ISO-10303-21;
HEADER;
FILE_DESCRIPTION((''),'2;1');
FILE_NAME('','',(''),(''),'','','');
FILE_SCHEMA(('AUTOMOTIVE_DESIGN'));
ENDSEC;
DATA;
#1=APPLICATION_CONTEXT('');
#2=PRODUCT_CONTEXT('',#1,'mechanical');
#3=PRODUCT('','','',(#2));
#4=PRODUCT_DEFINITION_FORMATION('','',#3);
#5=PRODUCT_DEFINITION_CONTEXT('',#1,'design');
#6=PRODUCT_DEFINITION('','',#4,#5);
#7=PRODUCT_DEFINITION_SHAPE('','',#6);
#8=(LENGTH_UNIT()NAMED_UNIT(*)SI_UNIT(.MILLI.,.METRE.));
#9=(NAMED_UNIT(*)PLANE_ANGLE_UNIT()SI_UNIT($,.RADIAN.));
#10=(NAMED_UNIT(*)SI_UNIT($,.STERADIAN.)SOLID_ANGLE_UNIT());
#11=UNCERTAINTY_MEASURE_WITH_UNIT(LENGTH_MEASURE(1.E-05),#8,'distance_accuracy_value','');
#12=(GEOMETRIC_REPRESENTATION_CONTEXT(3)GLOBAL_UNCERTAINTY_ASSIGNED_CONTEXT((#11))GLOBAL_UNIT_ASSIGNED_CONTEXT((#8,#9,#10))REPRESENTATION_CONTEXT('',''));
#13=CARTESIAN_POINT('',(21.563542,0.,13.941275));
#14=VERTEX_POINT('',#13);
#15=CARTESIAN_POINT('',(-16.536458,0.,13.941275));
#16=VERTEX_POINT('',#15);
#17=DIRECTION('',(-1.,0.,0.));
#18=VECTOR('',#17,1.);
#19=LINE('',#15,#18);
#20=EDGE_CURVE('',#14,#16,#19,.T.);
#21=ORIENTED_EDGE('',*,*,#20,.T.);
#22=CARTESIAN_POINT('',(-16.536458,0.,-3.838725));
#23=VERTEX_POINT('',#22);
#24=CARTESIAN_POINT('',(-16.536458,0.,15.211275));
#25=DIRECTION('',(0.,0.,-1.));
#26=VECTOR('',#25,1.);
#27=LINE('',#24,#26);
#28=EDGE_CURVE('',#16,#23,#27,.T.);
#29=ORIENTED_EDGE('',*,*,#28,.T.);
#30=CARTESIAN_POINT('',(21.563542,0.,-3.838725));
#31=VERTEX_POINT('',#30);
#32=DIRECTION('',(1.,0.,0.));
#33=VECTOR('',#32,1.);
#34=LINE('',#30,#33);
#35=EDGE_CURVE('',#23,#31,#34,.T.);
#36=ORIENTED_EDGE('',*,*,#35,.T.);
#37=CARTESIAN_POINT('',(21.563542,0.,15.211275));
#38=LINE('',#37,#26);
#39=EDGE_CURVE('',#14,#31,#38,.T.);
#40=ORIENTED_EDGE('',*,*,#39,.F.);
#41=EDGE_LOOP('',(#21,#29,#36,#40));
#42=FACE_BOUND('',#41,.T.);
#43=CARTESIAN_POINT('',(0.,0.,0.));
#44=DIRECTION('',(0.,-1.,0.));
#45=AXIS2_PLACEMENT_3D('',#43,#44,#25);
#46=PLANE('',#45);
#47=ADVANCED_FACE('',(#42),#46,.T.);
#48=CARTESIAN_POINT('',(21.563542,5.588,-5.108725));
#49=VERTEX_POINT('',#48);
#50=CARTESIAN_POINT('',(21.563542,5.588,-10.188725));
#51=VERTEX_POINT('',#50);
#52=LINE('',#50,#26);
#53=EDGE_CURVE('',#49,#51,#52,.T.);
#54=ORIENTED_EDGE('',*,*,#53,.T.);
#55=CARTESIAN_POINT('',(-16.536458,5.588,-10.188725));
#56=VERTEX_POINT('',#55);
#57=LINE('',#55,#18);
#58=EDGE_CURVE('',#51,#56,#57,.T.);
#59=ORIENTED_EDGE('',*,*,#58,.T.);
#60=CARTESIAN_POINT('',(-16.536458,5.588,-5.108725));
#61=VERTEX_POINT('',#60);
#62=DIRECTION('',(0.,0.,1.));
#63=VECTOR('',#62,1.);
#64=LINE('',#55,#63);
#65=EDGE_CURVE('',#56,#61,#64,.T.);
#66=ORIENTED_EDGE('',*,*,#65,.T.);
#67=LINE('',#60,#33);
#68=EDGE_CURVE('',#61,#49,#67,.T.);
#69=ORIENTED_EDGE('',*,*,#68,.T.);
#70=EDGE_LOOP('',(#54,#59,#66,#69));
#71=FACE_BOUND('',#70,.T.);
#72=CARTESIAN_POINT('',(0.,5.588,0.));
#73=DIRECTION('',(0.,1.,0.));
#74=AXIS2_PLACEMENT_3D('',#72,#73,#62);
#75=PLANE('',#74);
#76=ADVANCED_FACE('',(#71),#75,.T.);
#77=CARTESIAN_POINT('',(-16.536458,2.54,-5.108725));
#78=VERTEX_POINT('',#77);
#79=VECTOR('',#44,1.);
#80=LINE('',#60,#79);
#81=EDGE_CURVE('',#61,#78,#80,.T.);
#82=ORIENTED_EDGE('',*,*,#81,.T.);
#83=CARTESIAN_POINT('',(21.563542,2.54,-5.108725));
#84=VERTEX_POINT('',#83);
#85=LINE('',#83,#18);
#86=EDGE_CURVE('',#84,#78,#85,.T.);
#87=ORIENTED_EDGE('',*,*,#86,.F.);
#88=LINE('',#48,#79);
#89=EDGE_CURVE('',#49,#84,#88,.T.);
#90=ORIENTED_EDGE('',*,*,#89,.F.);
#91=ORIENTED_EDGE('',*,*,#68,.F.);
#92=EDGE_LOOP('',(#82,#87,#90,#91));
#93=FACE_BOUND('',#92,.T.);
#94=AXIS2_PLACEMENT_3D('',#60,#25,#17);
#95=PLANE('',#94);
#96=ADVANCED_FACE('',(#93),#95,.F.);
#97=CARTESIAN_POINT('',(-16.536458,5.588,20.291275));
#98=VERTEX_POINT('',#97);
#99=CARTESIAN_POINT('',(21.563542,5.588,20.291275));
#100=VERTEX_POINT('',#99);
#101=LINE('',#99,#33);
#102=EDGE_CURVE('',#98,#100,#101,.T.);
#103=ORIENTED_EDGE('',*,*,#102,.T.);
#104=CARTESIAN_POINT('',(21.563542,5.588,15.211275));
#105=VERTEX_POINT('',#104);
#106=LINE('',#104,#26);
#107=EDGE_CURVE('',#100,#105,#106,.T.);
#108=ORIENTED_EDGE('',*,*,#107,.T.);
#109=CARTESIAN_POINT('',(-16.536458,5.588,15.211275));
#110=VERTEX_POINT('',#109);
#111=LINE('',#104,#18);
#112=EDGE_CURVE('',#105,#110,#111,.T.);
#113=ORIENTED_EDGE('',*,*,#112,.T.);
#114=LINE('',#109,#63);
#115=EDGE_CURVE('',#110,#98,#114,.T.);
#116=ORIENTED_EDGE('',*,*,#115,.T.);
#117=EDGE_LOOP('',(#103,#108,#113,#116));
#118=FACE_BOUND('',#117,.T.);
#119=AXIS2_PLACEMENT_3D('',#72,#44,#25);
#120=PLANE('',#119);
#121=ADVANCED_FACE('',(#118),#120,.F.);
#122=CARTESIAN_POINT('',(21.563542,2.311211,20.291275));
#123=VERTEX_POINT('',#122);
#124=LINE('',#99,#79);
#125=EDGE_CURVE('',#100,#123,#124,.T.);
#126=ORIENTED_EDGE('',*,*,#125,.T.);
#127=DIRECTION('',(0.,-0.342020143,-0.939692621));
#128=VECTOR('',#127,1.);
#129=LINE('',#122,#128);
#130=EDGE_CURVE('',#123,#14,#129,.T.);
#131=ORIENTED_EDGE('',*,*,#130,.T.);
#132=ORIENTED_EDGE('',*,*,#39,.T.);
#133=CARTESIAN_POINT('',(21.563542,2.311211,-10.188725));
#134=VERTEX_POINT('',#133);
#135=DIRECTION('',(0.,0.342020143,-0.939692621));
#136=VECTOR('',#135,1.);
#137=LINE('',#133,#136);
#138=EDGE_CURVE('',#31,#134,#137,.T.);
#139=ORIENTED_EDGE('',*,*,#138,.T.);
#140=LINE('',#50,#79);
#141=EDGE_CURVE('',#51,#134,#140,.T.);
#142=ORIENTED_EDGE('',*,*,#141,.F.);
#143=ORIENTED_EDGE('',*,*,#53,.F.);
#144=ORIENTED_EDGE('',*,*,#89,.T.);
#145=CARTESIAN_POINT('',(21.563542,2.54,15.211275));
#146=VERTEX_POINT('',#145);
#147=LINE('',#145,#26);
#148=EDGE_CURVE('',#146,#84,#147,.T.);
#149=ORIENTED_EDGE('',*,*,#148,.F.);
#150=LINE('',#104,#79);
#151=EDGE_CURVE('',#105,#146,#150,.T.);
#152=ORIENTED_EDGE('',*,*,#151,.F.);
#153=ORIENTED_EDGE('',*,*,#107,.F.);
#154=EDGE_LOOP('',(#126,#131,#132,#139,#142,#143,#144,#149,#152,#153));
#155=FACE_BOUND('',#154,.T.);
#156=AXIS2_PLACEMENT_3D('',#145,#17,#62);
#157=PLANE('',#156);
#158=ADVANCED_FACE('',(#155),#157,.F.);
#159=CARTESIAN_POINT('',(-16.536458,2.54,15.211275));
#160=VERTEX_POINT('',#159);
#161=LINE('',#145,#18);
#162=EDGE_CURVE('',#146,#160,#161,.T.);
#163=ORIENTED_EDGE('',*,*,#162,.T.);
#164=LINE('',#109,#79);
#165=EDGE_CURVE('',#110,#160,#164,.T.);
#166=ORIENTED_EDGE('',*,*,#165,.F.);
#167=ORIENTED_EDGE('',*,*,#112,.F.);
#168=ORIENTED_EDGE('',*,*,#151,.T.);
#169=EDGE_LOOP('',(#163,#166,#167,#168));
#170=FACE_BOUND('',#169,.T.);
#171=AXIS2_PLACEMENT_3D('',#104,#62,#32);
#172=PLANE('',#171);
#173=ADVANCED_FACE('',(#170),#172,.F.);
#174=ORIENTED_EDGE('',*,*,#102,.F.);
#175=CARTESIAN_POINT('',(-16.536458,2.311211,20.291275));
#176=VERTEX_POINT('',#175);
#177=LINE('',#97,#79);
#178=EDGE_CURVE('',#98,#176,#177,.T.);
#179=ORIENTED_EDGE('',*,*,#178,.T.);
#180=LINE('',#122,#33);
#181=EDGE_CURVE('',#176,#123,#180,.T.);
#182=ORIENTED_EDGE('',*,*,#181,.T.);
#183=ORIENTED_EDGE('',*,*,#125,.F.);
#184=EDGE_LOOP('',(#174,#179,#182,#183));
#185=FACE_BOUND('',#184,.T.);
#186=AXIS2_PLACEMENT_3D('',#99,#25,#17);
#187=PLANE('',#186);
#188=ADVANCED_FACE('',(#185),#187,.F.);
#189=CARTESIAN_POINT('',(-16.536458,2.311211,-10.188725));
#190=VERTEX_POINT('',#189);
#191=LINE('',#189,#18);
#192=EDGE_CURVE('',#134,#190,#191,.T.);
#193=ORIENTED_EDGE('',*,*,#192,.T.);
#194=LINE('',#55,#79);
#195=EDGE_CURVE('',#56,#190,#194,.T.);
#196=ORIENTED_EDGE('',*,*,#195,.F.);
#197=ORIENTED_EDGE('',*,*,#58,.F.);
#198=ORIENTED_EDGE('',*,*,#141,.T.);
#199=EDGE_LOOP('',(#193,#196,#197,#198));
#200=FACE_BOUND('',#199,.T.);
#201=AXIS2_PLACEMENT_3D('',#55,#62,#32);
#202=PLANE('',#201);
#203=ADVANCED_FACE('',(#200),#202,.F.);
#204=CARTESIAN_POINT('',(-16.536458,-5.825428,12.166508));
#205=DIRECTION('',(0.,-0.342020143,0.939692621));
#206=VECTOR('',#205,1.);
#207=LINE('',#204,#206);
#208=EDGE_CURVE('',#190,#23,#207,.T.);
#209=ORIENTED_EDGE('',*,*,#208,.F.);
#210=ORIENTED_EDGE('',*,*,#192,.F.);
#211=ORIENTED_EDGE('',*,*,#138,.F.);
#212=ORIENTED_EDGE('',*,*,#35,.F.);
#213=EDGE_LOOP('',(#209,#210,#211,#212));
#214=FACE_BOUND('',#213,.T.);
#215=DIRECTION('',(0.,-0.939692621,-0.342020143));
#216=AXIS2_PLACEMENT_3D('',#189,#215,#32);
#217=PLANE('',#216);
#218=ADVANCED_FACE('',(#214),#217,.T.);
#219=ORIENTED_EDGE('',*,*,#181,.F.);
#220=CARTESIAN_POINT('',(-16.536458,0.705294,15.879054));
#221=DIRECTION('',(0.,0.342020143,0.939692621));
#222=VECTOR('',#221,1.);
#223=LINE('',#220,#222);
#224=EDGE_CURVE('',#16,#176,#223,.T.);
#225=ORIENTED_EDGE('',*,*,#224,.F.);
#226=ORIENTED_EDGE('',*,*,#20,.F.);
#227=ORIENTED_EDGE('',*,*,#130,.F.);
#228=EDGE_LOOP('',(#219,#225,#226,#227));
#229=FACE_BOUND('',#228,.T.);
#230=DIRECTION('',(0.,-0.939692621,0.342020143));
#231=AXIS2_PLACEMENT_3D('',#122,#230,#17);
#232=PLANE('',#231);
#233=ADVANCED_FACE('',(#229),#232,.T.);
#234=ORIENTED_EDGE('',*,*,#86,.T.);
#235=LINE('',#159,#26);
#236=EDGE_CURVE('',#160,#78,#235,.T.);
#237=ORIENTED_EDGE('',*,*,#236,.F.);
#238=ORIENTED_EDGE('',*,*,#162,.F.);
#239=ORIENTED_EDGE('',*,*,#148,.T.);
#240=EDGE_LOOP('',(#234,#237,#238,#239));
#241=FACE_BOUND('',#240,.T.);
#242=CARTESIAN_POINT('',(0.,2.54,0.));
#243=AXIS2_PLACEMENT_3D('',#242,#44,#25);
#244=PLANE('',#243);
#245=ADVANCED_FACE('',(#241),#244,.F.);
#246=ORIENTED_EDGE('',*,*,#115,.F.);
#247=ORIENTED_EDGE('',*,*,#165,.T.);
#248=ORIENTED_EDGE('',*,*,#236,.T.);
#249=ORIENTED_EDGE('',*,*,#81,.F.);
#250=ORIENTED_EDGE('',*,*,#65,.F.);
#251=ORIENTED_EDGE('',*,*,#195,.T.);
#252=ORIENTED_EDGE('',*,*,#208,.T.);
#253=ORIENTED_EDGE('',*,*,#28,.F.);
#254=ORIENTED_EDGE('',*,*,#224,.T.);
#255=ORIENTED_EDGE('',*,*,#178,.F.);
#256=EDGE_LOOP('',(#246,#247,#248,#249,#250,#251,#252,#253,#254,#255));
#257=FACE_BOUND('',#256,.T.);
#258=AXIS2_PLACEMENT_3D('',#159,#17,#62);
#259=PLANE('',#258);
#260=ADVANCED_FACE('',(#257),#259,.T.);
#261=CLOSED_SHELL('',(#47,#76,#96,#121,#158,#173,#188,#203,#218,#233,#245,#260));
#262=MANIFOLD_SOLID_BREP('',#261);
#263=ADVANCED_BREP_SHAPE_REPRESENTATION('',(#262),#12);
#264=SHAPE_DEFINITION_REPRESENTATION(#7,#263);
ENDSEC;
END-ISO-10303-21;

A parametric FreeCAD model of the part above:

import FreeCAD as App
import Part
import Sketcher

V = App.Vector
Q = App.Units.Quantity


def edges_at(feature, points):
    """Names of the edges that pass closest to the given points."""
    edges = feature.Shape.Edges
    near = lambda p: min(range(len(edges)), key=lambda i: edges[i].distToShape(Part.Vertex(*p))[0])
    return sorted({f"Edge{near(p) + 1}" for p in points})


def add_polygon(sketch, points):
    """Adds a closed chain of lines whose ends are joined by coincident constraints."""
    first, n = sketch.GeometryCount, len(points)
    for a, b in zip(points, points[1:] + points[:1]):
        sketch.addGeometry(Part.LineSegment(App.Vector(*a, 0), App.Vector(*b, 0)), False)
    for i in range(n):
        sketch.addConstraint(Sketcher.Constraint("Coincident", first + i, 2, first + (i + 1) % n, 1))

doc = App.newDocument("Part")
body = doc.addObject("PartDesign::Body", "Body")

# Sketch on XZ plane
sketch1 = body.newObject("Sketcher::SketchObject", "Sketch")
sketch1.AttachmentSupport = (doc.getObject("XZ_Plane"), [""])
sketch1.MapMode = "FlatFace"
add_polygon(sketch1, [(-17, -5), (-17, 15), (22, 15), (22, -5)])  # lines 0-3
sketch1.addConstraint([
    Sketcher.Constraint("Vertical", 0),
    Sketcher.Constraint("Horizontal", 1),
    Sketcher.Constraint("Vertical", 2),
    Sketcher.Constraint("Horizontal", 3),
    Sketcher.Constraint("DistanceX", 1, 1, 1, 2, Q("1.5 in")),
    Sketcher.Constraint("DistanceY", 0, 1, 0, 2, Q("0.8 in")),
    Sketcher.Constraint("DistanceX", 0, 2, -1, 1, Q("16.536458 mm")),
    Sketcher.Constraint("DistanceY", -1, 1, 0, 2, Q("15.211275 mm")),
])
pad1 = body.newObject("PartDesign::Pad", "Pad")
pad1.Profile = sketch1
pad1.Length = Q("0.1 in")
pad1.Reversed = True

# Sketch on XZ plane
sketch2 = body.newObject("Sketcher::SketchObject", "Sketch001")
sketch2.AttachmentSupport = (doc.getObject("XZ_Plane"), [""])
sketch2.MapMode = "FlatFace"
add_polygon(sketch2, [(-17, -10), (-17, -5), (22, -5), (22, -10)])  # lines 0-3
add_polygon(sketch2, [(-17, 15), (-17, 20), (22, 20), (22, 15)])  # lines 4-7
sketch2.addConstraint([
    Sketcher.Constraint("Vertical", 0),
    Sketcher.Constraint("Horizontal", 1),
    Sketcher.Constraint("Vertical", 2),
    Sketcher.Constraint("Horizontal", 3),
    Sketcher.Constraint("Vertical", 4),
    Sketcher.Constraint("Horizontal", 5),
    Sketcher.Constraint("Vertical", 6),
    Sketcher.Constraint("Horizontal", 7),
    Sketcher.Constraint("Vertical", 3, 2, 4, 2),
    Sketcher.Constraint("Vertical", 2, 2, 5, 2),
    Sketcher.Constraint("Equal", 2, 4),
    Sketcher.Constraint("DistanceX", 1, 1, 1, 2, Q("1.5 in")),
    Sketcher.Constraint("DistanceY", 0, 1, 0, 2, Q("0.2 in")),
    Sketcher.Constraint("DistanceY", 0, 2, 4, 2, Q("1 in")),
    Sketcher.Constraint("DistanceX", 0, 2, -1, 1, Q("16.536458 mm")),
    Sketcher.Constraint("DistanceY", 0, 2, -1, 1, Q("5.108725 mm")),
])
pad2 = body.newObject("PartDesign::Pad", "Pad001")
pad2.Profile = sketch2
pad2.Length = Q("0.22 in")
pad2.Reversed = True
doc.recompute()

chamfer = body.newObject("PartDesign::Chamfer", "Chamfer")
chamfer.Base = (pad2, edges_at(pad2, [(2.514, 0, -10.189), (2.514, 0, 20.291)]))
chamfer.ChamferType = "Two distances"
chamfer.Size = Q("0.25 in")
chamfer.Size2 = 2.311211
chamfer.FlipDirection = True

doc.recompute()
